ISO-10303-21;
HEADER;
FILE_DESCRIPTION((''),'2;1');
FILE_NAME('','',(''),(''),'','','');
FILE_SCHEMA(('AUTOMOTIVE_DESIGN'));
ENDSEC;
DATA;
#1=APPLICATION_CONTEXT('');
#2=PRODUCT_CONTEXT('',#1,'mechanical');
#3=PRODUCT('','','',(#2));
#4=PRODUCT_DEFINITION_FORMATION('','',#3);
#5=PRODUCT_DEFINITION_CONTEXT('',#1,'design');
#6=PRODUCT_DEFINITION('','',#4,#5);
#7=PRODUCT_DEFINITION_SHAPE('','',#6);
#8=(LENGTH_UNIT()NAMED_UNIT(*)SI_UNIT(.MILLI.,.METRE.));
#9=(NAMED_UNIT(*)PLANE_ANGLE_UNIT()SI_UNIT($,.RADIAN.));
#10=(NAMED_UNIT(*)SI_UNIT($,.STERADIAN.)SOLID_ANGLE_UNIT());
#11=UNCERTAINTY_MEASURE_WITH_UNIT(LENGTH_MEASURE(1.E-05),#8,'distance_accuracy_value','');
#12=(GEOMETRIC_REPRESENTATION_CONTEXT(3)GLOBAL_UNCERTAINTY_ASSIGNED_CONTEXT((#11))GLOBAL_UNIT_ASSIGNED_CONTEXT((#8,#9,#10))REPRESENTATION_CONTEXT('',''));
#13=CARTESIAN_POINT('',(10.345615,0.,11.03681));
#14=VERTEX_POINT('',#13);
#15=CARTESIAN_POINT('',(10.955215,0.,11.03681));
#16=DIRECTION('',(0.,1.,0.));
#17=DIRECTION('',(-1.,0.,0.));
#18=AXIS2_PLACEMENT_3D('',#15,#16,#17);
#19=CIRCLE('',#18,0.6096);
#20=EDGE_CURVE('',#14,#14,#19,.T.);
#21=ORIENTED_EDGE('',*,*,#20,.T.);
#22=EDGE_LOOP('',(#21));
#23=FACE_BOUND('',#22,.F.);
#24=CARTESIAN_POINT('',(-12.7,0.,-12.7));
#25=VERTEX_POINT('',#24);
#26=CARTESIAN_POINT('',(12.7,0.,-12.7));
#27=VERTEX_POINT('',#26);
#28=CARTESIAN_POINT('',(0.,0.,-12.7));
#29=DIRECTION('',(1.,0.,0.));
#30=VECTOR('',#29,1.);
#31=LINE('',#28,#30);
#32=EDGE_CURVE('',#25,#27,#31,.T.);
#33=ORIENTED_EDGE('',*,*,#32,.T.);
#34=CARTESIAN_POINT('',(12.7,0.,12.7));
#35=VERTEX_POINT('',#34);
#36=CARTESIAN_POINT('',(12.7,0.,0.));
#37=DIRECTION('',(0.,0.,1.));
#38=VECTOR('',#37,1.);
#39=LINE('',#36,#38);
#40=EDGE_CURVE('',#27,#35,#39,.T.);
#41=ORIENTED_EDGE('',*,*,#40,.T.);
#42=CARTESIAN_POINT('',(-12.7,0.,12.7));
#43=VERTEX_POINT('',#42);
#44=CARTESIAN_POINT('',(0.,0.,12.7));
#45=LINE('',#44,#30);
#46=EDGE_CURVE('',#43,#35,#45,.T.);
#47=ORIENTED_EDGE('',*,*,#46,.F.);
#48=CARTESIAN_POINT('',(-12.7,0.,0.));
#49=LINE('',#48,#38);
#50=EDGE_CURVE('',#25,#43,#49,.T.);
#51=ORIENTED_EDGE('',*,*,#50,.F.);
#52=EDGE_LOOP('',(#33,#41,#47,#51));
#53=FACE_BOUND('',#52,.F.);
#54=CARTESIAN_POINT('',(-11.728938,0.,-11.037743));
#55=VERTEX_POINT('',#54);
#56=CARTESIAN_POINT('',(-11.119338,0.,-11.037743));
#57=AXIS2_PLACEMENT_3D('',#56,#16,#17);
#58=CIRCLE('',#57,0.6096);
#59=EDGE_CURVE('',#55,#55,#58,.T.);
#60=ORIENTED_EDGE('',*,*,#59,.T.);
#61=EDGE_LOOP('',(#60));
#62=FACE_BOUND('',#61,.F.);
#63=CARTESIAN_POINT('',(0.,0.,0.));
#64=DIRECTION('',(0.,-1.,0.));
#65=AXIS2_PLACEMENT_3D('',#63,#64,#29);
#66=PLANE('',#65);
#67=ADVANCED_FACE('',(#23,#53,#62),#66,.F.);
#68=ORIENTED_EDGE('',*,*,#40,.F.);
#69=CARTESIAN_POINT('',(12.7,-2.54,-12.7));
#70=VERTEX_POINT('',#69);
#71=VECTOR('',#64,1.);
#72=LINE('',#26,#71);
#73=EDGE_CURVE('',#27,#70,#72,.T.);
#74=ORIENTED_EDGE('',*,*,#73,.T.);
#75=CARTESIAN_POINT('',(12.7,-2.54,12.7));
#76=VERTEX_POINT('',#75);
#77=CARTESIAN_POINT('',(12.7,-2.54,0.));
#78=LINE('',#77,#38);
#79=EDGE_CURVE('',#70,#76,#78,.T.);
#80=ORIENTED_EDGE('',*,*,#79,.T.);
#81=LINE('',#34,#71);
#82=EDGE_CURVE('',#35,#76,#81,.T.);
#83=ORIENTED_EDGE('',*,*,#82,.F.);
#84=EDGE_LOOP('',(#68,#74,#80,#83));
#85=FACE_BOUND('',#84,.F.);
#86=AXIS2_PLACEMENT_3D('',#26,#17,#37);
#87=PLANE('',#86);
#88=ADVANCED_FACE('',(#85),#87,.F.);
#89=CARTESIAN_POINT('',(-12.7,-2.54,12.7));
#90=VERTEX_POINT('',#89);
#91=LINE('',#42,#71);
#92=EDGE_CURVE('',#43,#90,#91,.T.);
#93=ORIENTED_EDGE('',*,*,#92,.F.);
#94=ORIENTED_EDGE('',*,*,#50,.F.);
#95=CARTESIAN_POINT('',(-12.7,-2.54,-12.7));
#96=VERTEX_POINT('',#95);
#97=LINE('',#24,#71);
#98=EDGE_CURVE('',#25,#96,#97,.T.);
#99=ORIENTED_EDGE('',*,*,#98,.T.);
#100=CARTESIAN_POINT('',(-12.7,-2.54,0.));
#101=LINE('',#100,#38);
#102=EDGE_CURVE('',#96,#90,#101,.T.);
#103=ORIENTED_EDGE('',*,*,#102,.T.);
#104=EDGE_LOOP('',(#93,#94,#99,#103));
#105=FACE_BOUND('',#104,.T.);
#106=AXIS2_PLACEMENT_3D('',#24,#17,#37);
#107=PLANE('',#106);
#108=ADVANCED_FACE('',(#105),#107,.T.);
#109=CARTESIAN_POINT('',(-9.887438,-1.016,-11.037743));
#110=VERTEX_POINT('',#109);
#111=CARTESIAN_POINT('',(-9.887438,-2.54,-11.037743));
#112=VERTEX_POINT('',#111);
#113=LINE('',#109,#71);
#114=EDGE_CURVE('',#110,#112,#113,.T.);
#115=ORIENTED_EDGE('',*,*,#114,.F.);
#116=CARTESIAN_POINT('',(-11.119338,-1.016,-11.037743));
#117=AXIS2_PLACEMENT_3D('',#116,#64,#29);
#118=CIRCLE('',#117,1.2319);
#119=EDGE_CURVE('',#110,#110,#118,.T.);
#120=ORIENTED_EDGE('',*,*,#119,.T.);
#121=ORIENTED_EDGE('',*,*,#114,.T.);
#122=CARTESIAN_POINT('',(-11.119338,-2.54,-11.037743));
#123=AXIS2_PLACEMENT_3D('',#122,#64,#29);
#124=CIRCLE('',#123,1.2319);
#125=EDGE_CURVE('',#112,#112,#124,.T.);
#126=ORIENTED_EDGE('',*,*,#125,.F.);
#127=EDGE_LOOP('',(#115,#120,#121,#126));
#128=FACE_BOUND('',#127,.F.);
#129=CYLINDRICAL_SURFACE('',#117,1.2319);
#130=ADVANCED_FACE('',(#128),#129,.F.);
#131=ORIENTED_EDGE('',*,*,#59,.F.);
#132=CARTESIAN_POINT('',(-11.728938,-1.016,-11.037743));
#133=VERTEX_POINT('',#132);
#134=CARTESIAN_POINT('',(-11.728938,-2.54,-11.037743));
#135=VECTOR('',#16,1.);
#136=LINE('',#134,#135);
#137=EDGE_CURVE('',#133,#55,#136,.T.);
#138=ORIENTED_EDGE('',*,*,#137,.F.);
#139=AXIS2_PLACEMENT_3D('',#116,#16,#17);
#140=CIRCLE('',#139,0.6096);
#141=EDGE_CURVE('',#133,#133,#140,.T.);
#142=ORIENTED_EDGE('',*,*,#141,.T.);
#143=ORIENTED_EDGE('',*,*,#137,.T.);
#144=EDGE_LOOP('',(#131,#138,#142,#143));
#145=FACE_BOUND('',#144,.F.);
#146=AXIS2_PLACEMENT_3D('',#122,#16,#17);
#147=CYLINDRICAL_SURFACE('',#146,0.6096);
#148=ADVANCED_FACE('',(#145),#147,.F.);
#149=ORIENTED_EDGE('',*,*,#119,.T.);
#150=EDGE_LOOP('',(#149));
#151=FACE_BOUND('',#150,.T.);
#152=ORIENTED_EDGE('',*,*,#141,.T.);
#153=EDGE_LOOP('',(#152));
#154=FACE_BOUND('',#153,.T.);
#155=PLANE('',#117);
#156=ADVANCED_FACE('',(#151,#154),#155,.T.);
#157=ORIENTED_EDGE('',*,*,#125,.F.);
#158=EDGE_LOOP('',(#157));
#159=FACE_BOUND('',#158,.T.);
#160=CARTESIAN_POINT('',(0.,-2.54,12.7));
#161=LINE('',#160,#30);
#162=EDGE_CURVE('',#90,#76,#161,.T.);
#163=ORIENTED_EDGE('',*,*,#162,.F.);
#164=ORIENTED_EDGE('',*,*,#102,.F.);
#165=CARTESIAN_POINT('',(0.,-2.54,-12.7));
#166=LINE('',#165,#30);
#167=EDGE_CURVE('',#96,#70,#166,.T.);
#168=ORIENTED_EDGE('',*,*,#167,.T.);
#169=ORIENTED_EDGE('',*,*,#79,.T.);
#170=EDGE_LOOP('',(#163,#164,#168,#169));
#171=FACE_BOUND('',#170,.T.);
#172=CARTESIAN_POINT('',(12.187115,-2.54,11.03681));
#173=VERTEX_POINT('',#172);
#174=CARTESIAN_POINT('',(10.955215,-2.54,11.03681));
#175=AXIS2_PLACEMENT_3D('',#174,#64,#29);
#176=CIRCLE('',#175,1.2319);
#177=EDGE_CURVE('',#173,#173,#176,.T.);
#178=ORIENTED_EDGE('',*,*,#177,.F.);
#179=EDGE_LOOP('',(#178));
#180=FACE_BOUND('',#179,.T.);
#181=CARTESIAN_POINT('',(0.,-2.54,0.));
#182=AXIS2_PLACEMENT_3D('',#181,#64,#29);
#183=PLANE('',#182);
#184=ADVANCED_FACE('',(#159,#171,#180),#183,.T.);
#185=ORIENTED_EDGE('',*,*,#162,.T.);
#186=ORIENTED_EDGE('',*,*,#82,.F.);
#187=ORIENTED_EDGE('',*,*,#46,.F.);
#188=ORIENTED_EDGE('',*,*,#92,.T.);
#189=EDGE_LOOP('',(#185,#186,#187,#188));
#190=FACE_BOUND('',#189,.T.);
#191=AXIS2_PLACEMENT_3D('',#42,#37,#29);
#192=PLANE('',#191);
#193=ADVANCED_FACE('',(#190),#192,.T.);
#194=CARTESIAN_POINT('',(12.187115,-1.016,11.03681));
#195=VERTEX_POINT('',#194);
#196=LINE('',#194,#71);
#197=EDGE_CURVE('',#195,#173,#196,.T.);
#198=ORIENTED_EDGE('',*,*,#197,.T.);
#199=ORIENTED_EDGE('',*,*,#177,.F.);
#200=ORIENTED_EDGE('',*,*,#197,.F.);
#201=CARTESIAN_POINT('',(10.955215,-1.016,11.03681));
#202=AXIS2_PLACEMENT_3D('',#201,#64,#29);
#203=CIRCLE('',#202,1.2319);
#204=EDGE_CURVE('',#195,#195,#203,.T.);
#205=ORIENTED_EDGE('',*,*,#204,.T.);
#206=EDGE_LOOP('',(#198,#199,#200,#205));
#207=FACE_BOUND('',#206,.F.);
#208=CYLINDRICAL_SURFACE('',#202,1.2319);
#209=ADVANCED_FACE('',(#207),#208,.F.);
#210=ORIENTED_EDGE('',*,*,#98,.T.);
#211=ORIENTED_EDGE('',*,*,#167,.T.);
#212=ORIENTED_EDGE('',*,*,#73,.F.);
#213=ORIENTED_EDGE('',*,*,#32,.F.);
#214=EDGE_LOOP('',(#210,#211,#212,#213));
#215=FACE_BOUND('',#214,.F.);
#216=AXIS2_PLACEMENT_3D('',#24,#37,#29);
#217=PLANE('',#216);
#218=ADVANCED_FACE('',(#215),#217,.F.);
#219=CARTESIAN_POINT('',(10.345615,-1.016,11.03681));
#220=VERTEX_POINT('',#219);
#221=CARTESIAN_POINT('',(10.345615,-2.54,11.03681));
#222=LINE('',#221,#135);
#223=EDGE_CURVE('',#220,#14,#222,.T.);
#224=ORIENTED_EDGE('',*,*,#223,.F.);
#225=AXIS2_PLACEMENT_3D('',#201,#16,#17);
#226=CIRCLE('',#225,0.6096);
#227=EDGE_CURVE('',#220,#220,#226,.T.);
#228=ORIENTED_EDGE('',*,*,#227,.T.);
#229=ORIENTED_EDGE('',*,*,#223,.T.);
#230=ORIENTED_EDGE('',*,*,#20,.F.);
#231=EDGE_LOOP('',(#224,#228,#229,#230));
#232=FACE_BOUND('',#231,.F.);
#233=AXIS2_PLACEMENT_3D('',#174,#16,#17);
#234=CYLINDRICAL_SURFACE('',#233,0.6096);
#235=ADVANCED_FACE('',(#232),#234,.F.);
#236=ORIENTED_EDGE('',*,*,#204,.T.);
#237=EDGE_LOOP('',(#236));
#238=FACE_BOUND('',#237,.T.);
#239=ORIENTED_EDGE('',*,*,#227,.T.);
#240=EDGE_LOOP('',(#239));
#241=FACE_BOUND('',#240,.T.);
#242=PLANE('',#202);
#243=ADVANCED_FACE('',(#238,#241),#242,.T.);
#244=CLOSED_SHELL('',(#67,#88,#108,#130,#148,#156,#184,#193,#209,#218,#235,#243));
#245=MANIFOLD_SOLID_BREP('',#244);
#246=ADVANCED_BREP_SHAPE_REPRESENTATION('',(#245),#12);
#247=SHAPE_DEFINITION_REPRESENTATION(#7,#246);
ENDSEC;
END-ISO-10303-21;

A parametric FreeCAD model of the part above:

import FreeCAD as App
import Part
import Sketcher
from FreeCAD import Vector
Q = App.Units.Quantity

doc = App.newDocument("Part")
body = doc.addObject("PartDesign::Body", "Body")

# Sketch on XZ plane
sketch1 = body.newObject("Sketcher::SketchObject", "Sketch")
sketch1.AttachmentSupport = (doc.getObject("XZ_Plane"), [""])
sketch1.MapMode = "FlatFace"
sketch1.addGeometry(Part.LineSegment(Vector(-13, 13, 0), Vector(-13, -13, 0)), False)
sketch1.addGeometry(Part.LineSegment(Vector(-13, -13, 0), Vector(13, -13, 0)), False)
sketch1.addGeometry(Part.LineSegment(Vector(13, -13, 0), Vector(13, 13, 0)), False)
sketch1.addGeometry(Part.LineSegment(Vector(13, 13, 0), Vector(-13, 13, 0)), False)
sketch1.addConstraint(Sketcher.Constraint("Coincident", 0, 2, 1, 1))
sketch1.addConstraint(Sketcher.Constraint("Coincident", 1, 2, 2, 1))
sketch1.addConstraint(Sketcher.Constraint("Coincident", 2, 2, 3, 1))
sketch1.addConstraint(Sketcher.Constraint("Coincident", 3, 2, 0, 1))
sketch1.addConstraint(Sketcher.Constraint("Vertical", 0))
sketch1.addConstraint(Sketcher.Constraint("Horizontal", 1))
sketch1.addConstraint(Sketcher.Constraint("Vertical", 2))
sketch1.addConstraint(Sketcher.Constraint("Horizontal", 3))
sketch1.addConstraint(Sketcher.Constraint("Symmetric", 0, 2, 2, 2, -1, 1))
sketch1.addConstraint(Sketcher.Constraint("Equal", 3, 0))
sketch1.addConstraint(Sketcher.Constraint("DistanceX", 1, 1, 1, 2, Q("1 in")))
pad1 = body.newObject("PartDesign::Pad", "Pad")
pad1.Profile = sketch1
pad1.Length = Q("0.1 in")

# Sketch on XZ plane
sketch2 = body.newObject("Sketcher::SketchObject", "Sketch001")
sketch2.AttachmentSupport = (doc.getObject("XZ_Plane"), [""])
sketch2.MapMode = "FlatFace"
sketch2.AttachmentOffset = App.Placement(Vector(0, 0, 0.1 * 25.4), App.Rotation())
sketch2.addGeometry(Part.Circle(Vector(-11.1, -11, 0), Vector(0, 0, 1), 0.6), False)
sketch2.addConstraint(Sketcher.Constraint("Diameter", 0, Q("0.048 in")))
sketch2.addConstraint(Sketcher.Constraint("DistanceX", 0, 3, -1, 1, Q("11.119338 mm")))
sketch2.addConstraint(Sketcher.Constraint("DistanceY", 0, 3, -1, 1, Q("11.037743 mm")))
doc.recompute()
hole = body.newObject("PartDesign::Hole", "Hole")
hole.Profile = sketch2
hole.ThreadType = "None"
hole.Diameter = Q("0.048 in")
hole.DepthType = "ThroughAll"
hole.HoleCutType = "Counterbore"
hole.HoleCutDiameter = Q("0.097 in")
hole.HoleCutDepth = Q("0.06 in")

# Sketch on XZ plane
sketch3 = body.newObject("Sketcher::SketchObject", "Sketch002")
sketch3.AttachmentSupport = (doc.getObject("XZ_Plane"), [""])
sketch3.MapMode = "FlatFace"
sketch3.AttachmentOffset = App.Placement(Vector(0, 0, 0.1 * 25.4), App.Rotation())
sketch3.addGeometry(Part.Circle(Vector(11, 11, 0), Vector(0, 0, 1), 0.6), False)
sketch3.addConstraint(Sketcher.Constraint("Diameter", 0, Q("0.048 in")))
sketch3.addConstraint(Sketcher.Constraint("DistanceY", -1, 1, 0, 3, Q("11.03681 mm")))
sketch3.addConstraint(Sketcher.Constraint("DistanceX", -1, 1, 0, 3, Q("10.955215 mm")))
doc.recompute()
hole2 = body.newObject("PartDesign::Hole", "Hole001")
hole2.Profile = sketch3
hole2.ThreadType = "None"
hole2.Diameter = Q("0.048 in")
hole2.DepthType = "ThroughAll"
hole2.HoleCutType = "Counterbore"
hole2.HoleCutDiameter = Q("0.097 in")
hole2.HoleCutDepth = Q("0.06 in")

doc.recompute()
